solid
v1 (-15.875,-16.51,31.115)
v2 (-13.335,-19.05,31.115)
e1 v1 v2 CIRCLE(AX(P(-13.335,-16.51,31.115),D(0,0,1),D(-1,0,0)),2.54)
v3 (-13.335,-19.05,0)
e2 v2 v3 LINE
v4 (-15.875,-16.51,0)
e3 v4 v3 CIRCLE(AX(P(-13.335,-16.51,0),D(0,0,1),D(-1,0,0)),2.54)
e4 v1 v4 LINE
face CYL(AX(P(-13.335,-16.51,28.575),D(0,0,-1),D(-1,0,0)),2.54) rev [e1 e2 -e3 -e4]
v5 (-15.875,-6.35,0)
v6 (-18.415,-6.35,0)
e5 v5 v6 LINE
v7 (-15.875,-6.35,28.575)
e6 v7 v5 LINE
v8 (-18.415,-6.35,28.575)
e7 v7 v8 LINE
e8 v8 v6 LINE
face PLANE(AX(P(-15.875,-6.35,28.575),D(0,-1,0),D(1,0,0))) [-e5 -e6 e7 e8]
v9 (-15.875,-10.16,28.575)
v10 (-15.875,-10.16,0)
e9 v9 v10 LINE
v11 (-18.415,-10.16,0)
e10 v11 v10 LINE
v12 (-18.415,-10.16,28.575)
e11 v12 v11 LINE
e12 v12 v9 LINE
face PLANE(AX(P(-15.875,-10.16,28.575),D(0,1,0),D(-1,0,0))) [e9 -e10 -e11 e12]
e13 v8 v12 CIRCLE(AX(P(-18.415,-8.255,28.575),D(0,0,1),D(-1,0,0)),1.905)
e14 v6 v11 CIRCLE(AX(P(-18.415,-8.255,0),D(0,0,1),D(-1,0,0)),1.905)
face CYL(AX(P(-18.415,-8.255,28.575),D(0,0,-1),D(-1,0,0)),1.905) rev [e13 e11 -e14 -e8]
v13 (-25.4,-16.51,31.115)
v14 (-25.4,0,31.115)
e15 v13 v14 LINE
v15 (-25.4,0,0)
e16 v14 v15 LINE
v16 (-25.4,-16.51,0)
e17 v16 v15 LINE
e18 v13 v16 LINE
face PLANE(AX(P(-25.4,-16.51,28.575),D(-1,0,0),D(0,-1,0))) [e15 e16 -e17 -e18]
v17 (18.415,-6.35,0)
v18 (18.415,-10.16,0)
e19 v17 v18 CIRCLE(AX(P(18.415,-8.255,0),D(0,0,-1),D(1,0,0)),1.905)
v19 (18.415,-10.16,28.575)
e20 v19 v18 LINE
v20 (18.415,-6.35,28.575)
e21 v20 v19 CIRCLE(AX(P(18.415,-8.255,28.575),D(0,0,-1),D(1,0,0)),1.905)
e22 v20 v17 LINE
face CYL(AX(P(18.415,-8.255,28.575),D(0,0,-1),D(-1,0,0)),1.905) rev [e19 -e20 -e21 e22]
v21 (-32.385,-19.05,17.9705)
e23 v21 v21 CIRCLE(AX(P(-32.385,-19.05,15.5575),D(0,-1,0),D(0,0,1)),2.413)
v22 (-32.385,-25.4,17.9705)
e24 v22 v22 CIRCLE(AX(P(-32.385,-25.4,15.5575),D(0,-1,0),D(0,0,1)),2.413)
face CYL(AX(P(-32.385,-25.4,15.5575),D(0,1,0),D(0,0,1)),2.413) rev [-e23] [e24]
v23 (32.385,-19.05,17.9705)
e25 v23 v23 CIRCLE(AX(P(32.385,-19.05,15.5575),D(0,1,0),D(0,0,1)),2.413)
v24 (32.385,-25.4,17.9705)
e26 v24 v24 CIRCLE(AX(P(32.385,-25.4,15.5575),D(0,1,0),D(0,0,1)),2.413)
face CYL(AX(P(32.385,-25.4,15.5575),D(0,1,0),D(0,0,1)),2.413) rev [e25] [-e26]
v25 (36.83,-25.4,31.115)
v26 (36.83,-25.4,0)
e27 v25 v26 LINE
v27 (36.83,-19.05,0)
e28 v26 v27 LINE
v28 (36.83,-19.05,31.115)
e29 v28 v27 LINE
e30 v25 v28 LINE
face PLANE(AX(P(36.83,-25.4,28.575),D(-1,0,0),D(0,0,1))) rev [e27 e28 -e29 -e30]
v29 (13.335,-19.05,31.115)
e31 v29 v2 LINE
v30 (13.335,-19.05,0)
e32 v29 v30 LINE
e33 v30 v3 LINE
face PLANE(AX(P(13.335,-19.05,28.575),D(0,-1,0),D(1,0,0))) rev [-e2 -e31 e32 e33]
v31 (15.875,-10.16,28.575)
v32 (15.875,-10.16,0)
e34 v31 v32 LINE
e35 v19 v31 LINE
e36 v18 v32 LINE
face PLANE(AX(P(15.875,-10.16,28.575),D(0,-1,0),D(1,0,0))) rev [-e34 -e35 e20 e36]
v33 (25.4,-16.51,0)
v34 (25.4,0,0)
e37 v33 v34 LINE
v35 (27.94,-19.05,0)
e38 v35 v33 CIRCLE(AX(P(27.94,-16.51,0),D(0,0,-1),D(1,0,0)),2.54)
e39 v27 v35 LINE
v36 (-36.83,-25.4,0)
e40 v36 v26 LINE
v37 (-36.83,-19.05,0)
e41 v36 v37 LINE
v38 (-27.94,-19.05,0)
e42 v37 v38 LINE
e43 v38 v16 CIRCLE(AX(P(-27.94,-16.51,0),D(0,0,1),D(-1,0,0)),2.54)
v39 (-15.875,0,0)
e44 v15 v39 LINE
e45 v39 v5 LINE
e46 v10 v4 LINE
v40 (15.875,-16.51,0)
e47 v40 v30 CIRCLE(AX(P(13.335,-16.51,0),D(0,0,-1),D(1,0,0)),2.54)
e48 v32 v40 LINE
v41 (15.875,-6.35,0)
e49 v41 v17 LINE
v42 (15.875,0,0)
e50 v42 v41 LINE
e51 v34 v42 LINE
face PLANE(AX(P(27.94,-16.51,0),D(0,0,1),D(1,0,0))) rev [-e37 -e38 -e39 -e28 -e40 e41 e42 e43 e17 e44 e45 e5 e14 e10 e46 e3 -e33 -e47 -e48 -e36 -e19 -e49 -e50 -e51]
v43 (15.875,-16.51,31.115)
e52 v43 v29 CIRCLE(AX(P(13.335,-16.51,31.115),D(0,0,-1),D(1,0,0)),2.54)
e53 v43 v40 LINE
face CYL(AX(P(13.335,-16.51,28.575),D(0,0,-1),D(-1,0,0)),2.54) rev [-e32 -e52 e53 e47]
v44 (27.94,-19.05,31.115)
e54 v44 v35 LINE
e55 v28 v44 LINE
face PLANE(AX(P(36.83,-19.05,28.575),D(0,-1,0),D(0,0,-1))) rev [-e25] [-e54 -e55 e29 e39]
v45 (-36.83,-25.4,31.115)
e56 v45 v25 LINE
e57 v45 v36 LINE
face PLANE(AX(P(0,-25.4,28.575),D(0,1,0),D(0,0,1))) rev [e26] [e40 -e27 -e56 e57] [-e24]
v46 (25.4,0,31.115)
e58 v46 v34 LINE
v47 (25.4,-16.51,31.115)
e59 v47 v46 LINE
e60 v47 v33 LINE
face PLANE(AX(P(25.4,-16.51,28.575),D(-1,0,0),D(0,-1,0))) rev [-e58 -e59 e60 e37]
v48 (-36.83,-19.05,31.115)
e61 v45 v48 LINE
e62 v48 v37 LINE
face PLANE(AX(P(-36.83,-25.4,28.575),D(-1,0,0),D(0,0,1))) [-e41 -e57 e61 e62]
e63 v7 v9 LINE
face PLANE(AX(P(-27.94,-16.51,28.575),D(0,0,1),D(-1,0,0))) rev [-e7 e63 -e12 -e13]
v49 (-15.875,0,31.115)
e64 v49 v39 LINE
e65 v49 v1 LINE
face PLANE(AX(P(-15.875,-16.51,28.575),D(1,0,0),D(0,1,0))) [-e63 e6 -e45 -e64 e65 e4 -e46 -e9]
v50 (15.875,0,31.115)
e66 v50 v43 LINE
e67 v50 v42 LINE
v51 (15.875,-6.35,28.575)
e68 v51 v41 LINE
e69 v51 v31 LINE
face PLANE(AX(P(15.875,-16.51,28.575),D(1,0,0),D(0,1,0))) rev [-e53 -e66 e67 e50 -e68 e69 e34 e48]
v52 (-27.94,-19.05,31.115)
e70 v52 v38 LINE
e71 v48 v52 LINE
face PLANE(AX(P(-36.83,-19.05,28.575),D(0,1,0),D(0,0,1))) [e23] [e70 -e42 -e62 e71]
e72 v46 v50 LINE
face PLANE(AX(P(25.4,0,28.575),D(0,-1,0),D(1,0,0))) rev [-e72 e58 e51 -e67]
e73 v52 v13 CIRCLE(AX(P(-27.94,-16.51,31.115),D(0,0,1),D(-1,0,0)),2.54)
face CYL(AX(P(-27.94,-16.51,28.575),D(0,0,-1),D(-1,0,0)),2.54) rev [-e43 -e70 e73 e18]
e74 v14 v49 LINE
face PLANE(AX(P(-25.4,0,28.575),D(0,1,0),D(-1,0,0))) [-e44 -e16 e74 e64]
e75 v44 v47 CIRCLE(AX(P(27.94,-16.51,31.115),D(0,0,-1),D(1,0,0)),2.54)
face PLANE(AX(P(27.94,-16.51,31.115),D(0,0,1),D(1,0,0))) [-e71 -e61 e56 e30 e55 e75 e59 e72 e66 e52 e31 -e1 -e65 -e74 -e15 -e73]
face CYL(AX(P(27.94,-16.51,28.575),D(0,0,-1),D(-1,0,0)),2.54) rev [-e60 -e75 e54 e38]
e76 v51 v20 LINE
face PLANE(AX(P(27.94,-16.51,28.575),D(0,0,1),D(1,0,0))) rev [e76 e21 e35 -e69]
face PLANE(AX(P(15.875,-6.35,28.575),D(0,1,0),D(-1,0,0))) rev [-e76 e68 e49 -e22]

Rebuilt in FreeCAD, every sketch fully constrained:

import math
import FreeCAD as App
import Part
import Sketcher
from FreeCAD import Vector
Q = App.Units.Quantity

doc = App.newDocument("Part")
body = doc.addObject("PartDesign::Body", "Body")

# Sketch on XY plane
sketch1 = doc.addObject("Sketcher::SketchObject", "Sketch")
body.addObject(sketch1)
sketch1.AttachmentSupport = (doc.XY_Plane, [""])
sketch1.MapMode = "FlatFace"
sketch1.addGeometry([
    Part.LineSegment(Vector(13.335, -19.05, 0), Vector(0, -19.05, 0)),  # 0
    Part.LineSegment(Vector(0, -19.05, 0), Vector(0, -25.4, 0)),  # 1
    Part.LineSegment(Vector(0, -25.4, 0), Vector(36.83, -25.4, 0)),  # 2
    Part.LineSegment(Vector(36.83, -25.4, 0), Vector(36.83, -19.05, 0)),  # 3
    Part.LineSegment(Vector(36.83, -19.05, 0), Vector(27.94, -19.05, 0)),  # 4
    Part.ArcOfCircle(Part.Circle(Vector(27.94, -16.51, 0), Vector(0, 0, 1), 2.54), math.radians(-180), math.radians(-90)),  # 5
    Part.LineSegment(Vector(25.4, -16.51, 0), Vector(25.4, 0, 0)),  # 6
    Part.LineSegment(Vector(25.4, 0, 0), Vector(15.875, 0, 0)),  # 7
    Part.LineSegment(Vector(15.875, 0, 0), Vector(15.875, -6.35, 0)),  # 8
    Part.LineSegment(Vector(15.875, -6.35, 0), Vector(18.415, -6.35, 0)),  # 9
    Part.ArcOfCircle(Part.Circle(Vector(18.415, -8.255, 0), Vector(0, 0, 1), 1.905), math.radians(-90), math.radians(90)),  # 10
    Part.LineSegment(Vector(18.415, -10.16, 0), Vector(15.875, -10.16, 0)),  # 11
    Part.LineSegment(Vector(15.875, -10.16, 0), Vector(15.875, -16.51, 0)),  # 12
    Part.ArcOfCircle(Part.Circle(Vector(13.335, -16.51, 0), Vector(0, 0, 1), 2.54), math.radians(-90), math.radians(0)),  # 13
], False)
sketch1.addConstraint([
    Sketcher.Constraint("Coincident", 0, 2, 1, 1),
    Sketcher.Constraint("Coincident", 1, 2, 2, 1),
    Sketcher.Constraint("Coincident", 2, 2, 3, 1),
    Sketcher.Constraint("Coincident", 3, 2, 4, 1),
    Sketcher.Constraint("Tangent", 4, 2, 5, 2),
    Sketcher.Constraint("Tangent", 5, 1, 6, 1),
    Sketcher.Constraint("Coincident", 6, 2, 7, 1),
    Sketcher.Constraint("Coincident", 7, 2, 8, 1),
    Sketcher.Constraint("Coincident", 8, 2, 9, 1),
    Sketcher.Constraint("Tangent", 9, 2, 10, 2),
    Sketcher.Constraint("Tangent", 10, 1, 11, 1),
    Sketcher.Constraint("Coincident", 11, 2, 12, 1),
    Sketcher.Constraint("Tangent", 12, 2, 13, 2),
    Sketcher.Constraint("Tangent", 13, 1, 0, 1),
    Sketcher.Constraint("Horizontal", 0),
    Sketcher.Constraint("Vertical", 1),
    Sketcher.Constraint("Horizontal", 2),
    Sketcher.Constraint("Vertical", 3),
    Sketcher.Constraint("Horizontal", 4),
    Sketcher.Constraint("Vertical", 6),
    Sketcher.Constraint("Horizontal", 7),
    Sketcher.Constraint("Vertical", 8),
    Sketcher.Constraint("Horizontal", 9),
    Sketcher.Constraint("Horizontal", 11),
    Sketcher.Constraint("Vertical", 12),
    Sketcher.Constraint("Equal", 5, 13),
    Sketcher.Constraint("PointOnObject", 0, 2, -2),
    Sketcher.Constraint("PointOnObject", 6, 2, -1),
    Sketcher.Constraint("Horizontal", 5, 3, 13, 3),
    Sketcher.Constraint("Vertical", 8, 2, 11, 2),
    Sketcher.Constraint("Equal", 3, 8),
    Sketcher.Constraint("Equal", 8, 12),
    Sketcher.Constraint("Radius", 5, Q("0.1 in")),
    Sketcher.Constraint("DistanceX", 9, 1, 9, 2, Q("0.1 in")),
    Sketcher.Constraint("DistanceY", 1, 2, -1, 1, Q("1 in")),
    Sketcher.Constraint("DistanceX", -1, 1, 5, 1, Q("1 in")),
    Sketcher.Constraint("Radius", 10, Q("0.075 in")),
    Sketcher.Constraint("DistanceX", 2, 1, 2, 2, Q("1.45 in")),
    Sketcher.Constraint("DistanceX", 0, 2, 0, 1, Q("0.525 in")),
])
pad1 = doc.addObject("PartDesign::Pad", "Pad")
body.addObject(pad1)
pad1.Profile = sketch1
pad1.Length = Q("1.125 in")

# Sketch on XY plane
sketch2 = doc.addObject("Sketcher::SketchObject", "Sketch001")
body.addObject(sketch2)
sketch2.AttachmentSupport = (doc.XY_Plane, [""])
sketch2.MapMode = "FlatFace"
sketch2.AttachmentOffset = App.Placement(Vector(0, 0, 1.125 * 25.4), App.Rotation())
sketch2.addGeometry([
    Part.LineSegment(Vector(0, -25.4, 0), Vector(36.83, -25.4, 0)),  # 0
    Part.LineSegment(Vector(36.83, -25.4, 0), Vector(36.83, -19.05, 0)),  # 1
    Part.LineSegment(Vector(36.83, -19.05, 0), Vector(27.94, -19.05, 0)),  # 2
    Part.ArcOfCircle(Part.Circle(Vector(27.94, -16.51, 0), Vector(0, 0, 1), 2.54), math.radians(-180), math.radians(-90)),  # 3
    Part.LineSegment(Vector(25.4, -16.51, 0), Vector(25.4, 0, 0)),  # 4
    Part.LineSegment(Vector(25.4, 0, 0), Vector(15.875, 0, 0)),  # 5
    Part.LineSegment(Vector(15.875, 0, 0), Vector(15.875, -16.51, 0)),  # 6
    Part.ArcOfCircle(Part.Circle(Vector(13.335, -16.51, 0), Vector(0, 0, 1), 2.54), math.radians(-90), math.radians(0)),  # 7
    Part.LineSegment(Vector(13.335, -19.05, 0), Vector(0, -19.05, 0)),  # 8
    Part.LineSegment(Vector(0, -19.05, 0), Vector(0, -25.4, 0)),  # 9
], False)
sketch2.addConstraint([
    Sketcher.Constraint("Coincident", 0, 2, 1, 1),
    Sketcher.Constraint("Coincident", 1, 2, 2, 1),
    Sketcher.Constraint("Tangent", 2, 2, 3, 2),
    Sketcher.Constraint("Tangent", 3, 1, 4, 1),
    Sketcher.Constraint("Coincident", 4, 2, 5, 1),
    Sketcher.Constraint("Coincident", 5, 2, 6, 1),
    Sketcher.Constraint("Tangent", 6, 2, 7, 2),
    Sketcher.Constraint("Tangent", 7, 1, 8, 1),
    Sketcher.Constraint("Coincident", 8, 2, 9, 1),
    Sketcher.Constraint("Coincident", 9, 2, 0, 1),
    Sketcher.Constraint("Horizontal", 0),
    Sketcher.Constraint("Vertical", 1),
    Sketcher.Constraint("Horizontal", 2),
    Sketcher.Constraint("Vertical", 4),
    Sketcher.Constraint("Horizontal", 5),
    Sketcher.Constraint("Vertical", 6),
    Sketcher.Constraint("Horizontal", 8),
    Sketcher.Constraint("Vertical", 9),
    Sketcher.Constraint("Equal", 3, 7),
    Sketcher.Constraint("PointOnObject", 4, 2, -1),
    Sketcher.Constraint("PointOnObject", 8, 2, -2),
    Sketcher.Constraint("Horizontal", 3, 3, 7, 3),
    Sketcher.Constraint("Radius", 3, Q("0.1 in")),
    Sketcher.Constraint("DistanceY", 0, 2, -1, 1, Q("1 in")),
    Sketcher.Constraint("DistanceX", -1, 1, 3, 1, Q("1 in")),
    Sketcher.Constraint("DistanceX", 0, 1, 0, 2, Q("1.45 in")),
    Sketcher.Constraint("DistanceY", 1, 1, 1, 2, Q("0.25 in")),
    Sketcher.Constraint("DistanceX", 5, 2, 5, 1, Q("0.375 in")),
])
pad2 = doc.addObject("PartDesign::Pad", "Pad001")
body.addObject(pad2)
pad2.Profile = sketch2
pad2.Length = Q("0.1 in")

# Sketch on XZ plane
sketch3 = doc.addObject("Sketcher::SketchObject", "Sketch002")
body.addObject(sketch3)
sketch3.AttachmentSupport = (doc.XZ_Plane, [""])
sketch3.MapMode = "FlatFace"
sketch3.AttachmentOffset = App.Placement(Vector(0, 0, 0.75 * 25.4), App.Rotation())
sketch3.addGeometry(Part.Circle(Vector(32.385, 15.5575, 0), Vector(0, 0, 1), 2.413), False)
sketch3.addConstraint([
    Sketcher.Constraint("Diameter", 0, Q("0.19 in")),
    Sketcher.Constraint("DistanceX", -1, 1, 0, 3, Q("1.275 in")),
    Sketcher.Constraint("DistanceY", -1, 1, 0, 3, Q("0.6125 in")),
])
pocket1 = doc.addObject("PartDesign::Pocket", "Pocket")
body.addObject(pocket1)
pocket1.Profile = sketch3
pocket1.Type = "ThroughAll"
pocket1.Reversed = True
doc.recompute()

mirrored = doc.addObject("PartDesign::Mirrored", "Mirrored")
body.addObject(mirrored)
mirrored.Originals = [pad1, pad2, pocket1]
mirrored.MirrorPlane = (doc.YZ_Plane, [""])
body.Tip = mirrored

doc.recompute()
